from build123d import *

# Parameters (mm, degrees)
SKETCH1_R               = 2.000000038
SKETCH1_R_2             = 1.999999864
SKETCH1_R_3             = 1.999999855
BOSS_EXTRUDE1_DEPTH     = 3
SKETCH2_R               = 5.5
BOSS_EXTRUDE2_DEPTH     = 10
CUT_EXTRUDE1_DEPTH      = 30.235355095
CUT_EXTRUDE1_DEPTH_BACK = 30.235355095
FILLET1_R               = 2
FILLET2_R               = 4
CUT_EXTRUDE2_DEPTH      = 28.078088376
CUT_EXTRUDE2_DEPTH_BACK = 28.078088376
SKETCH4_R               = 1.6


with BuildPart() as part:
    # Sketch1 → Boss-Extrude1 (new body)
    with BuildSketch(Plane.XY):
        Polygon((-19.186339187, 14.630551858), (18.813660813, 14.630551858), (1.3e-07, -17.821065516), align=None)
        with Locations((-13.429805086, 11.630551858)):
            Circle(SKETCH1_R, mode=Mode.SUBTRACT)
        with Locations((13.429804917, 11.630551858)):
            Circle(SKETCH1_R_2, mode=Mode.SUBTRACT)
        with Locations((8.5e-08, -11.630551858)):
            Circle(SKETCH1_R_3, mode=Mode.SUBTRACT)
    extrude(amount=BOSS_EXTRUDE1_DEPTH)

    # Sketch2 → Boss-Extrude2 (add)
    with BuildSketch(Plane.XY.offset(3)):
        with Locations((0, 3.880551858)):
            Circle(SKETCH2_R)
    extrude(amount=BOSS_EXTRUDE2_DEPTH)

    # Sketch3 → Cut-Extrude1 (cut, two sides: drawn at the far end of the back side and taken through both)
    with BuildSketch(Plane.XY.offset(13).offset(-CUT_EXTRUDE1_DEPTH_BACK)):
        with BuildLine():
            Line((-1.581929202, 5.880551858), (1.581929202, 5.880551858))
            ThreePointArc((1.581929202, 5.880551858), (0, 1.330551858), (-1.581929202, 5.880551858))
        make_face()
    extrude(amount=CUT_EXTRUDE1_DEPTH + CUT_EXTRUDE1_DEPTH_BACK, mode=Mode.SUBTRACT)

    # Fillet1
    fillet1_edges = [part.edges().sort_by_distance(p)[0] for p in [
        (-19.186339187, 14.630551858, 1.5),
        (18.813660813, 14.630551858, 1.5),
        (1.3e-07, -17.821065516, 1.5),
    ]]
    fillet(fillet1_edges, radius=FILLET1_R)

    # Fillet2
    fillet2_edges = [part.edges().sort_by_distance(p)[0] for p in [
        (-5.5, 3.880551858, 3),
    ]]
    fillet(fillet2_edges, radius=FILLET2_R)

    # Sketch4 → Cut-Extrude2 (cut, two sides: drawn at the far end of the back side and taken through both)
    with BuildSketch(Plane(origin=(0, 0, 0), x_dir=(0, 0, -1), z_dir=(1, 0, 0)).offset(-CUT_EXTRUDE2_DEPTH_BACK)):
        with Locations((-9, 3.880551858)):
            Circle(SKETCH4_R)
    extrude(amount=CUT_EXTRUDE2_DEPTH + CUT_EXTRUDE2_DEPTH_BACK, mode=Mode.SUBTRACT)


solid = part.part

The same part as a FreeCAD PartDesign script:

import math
import FreeCAD as App
import Part
import Sketcher
Q = App.Units.Quantity


def edges_at(feature, points):
    """Names of the edges that pass closest to the given points."""
    edges = feature.Shape.Edges
    near = lambda p: min(range(len(edges)), key=lambda i: edges[i].distToShape(Part.Vertex(*p))[0])
    return sorted({f"Edge{near(p) + 1}" for p in points})


def add_polygon(sketch, points):
    """Adds a closed chain of lines whose ends are joined by coincident constraints."""
    first, n = sketch.GeometryCount, len(points)
    for a, b in zip(points, points[1:] + points[:1]):
        sketch.addGeometry(Part.LineSegment(App.Vector(*a, 0), App.Vector(*b, 0)), False)
    for i in range(n):
        sketch.addConstraint(Sketcher.Constraint("Coincident", first + i, 2, first + (i + 1) % n, 1))

doc = App.newDocument("Part")
body = doc.addObject("PartDesign::Body", "Body")

# Sketch on XY plane
sketch1 = doc.addObject("Sketcher::SketchObject", "Sketch")
body.addObject(sketch1)
sketch1.AttachmentSupport = (doc.XY_Plane, [""])
sketch1.MapMode = "FlatFace"
add_polygon(sketch1, [(18.8, 14.6), (-19.2, 14.6), (0, -17.8)])  # lines 0-2
sketch1.addGeometry(Part.Circle(App.Vector(0, -11.6, 0), App.Vector(0, 0, 1), 2), False)  # 3
sketch1.addGeometry(Part.Circle(App.Vector(13.4, 11.6, 0), App.Vector(0, 0, 1), 2), False)  # 4
sketch1.addGeometry(Part.Circle(App.Vector(-13.4, 11.6, 0), App.Vector(0, 0, 1), 2), False)  # 5
sketch1.addConstraint([
    Sketcher.Constraint("Horizontal", 0),
    Sketcher.Constraint("Equal", 3, 4),
    Sketcher.Constraint("Equal", 4, 5),
    Sketcher.Constraint("Symmetric", 4, 3, 5, 3, -2),
    Sketcher.Constraint("PointOnObject", 3, 3, -2),
    Sketcher.Constraint("PointOnObject", 1, 2, -2),
    Sketcher.Constraint("Diameter", 3, Q("4 mm")),
    Sketcher.Constraint("DistanceX", 0, 2, 0, 1, Q("38 mm")),
    Sketcher.Constraint("DistanceY", 5, 3, 0, 2, Q("3 mm")),
    Sketcher.Constraint("DistanceY", 3, 3, -1, 1, Q("11.630552 mm")),
    Sketcher.Constraint("DistanceY", -1, 1, 4, 3, Q("11.630552 mm")),
    Sketcher.Constraint("DistanceX", 0, 2, -1, 1, Q("19.186339 mm")),
    Sketcher.Constraint("DistanceX", 5, 3, 4, 3, Q("26.85961 mm")),
    Sketcher.Constraint("Distance", 1, Q("37.699113 mm")),
])
pad1 = doc.addObject("PartDesign::Pad", "Pad")
body.addObject(pad1)
pad1.Profile = sketch1
pad1.Length = 3

# Sketch on XY plane
sketch2 = doc.addObject("Sketcher::SketchObject", "Sketch001")
body.addObject(sketch2)
sketch2.AttachmentSupport = (doc.XY_Plane, [""])
sketch2.MapMode = "FlatFace"
sketch2.AttachmentOffset = App.Placement(App.Vector(0, 0, 3), App.Rotation())
sketch2.addGeometry(Part.Circle(App.Vector(0, 4, 0), App.Vector(0, 0, 1), 6), False)
sketch2.addConstraint([
    Sketcher.Constraint("PointOnObject", 0, 3, -2),
    Sketcher.Constraint("Diameter", 0, Q("11 mm")),
    Sketcher.Constraint("DistanceY", -1, 1, 0, 3, Q("3.880552 mm")),
])
pad2 = doc.addObject("PartDesign::Pad", "Pad001")
body.addObject(pad2)
pad2.Profile = sketch2
pad2.Length = 10

# Sketch on XY plane
sketch3 = doc.addObject("Sketcher::SketchObject", "Sketch002")
body.addObject(sketch3)
sketch3.AttachmentSupport = (doc.XY_Plane, [""])
sketch3.MapMode = "FlatFace"
sketch3.AttachmentOffset = App.Placement(App.Vector(0, 0, 13), App.Rotation())
sketch3.addGeometry([
    Part.LineSegment(App.Vector(1.6, 5.9, 0), App.Vector(-1.6, 5.9, 0)),
    Part.ArcOfCircle(Part.Circle(App.Vector(0, 3.9, 0), App.Vector(0, 0, 1), 2.5), math.radians(128), math.radians(412)),
], False)
sketch3.addConstraint([
    Sketcher.Constraint("Coincident", 0, 1, 1, 2),
    Sketcher.Constraint("Coincident", 1, 1, 0, 2),
    Sketcher.Constraint("Horizontal", 0),
    Sketcher.Constraint("PointOnObject", 1, 3, -2),
    Sketcher.Constraint("Radius", 1, Q("2.55 mm")),
    Sketcher.Constraint("DistanceY", 1, 3, 0, 1, Q("2 mm")),
    Sketcher.Constraint("DistanceY", -1, 1, 1, 3, Q("3.880552 mm")),
])
pocket1 = doc.addObject("PartDesign::Pocket", "Pocket")
body.addObject(pocket1)
pocket1.Profile = sketch3
pocket1.Type = "ThroughAll"
pocket1.Midplane = True
doc.recompute()

fillet = doc.addObject("PartDesign::Fillet", "Fillet")
body.addObject(fillet)
fillet.Base = (pocket1, edges_at(pocket1, [(-19.186, 14.631, 1.5), (18.814, 14.631, 1.5), (0, -17.821, 1.5)]))
fillet.Radius = 2
doc.recompute()

fillet2 = doc.addObject("PartDesign::Fillet", "Fillet001")
body.addObject(fillet2)
fillet2.Base = (fillet, edges_at(fillet, [(-5.5, 3.881, 3)]))
fillet2.Radius = 4

# Sketch on YZ plane
sketch4 = doc.addObject("Sketcher::SketchObject", "Sketch003")
body.addObject(sketch4)
sketch4.AttachmentSupport = (doc.YZ_Plane, [""])
sketch4.MapMode = "FlatFace"
sketch4.addGeometry(Part.Circle(App.Vector(3.9, 9, 0), App.Vector(0, 0, 1), 1.6), False)
sketch4.addConstraint([
    Sketcher.Constraint("Diameter", 0, Q("3.2 mm")),
    Sketcher.Constraint("DistanceY", -1, 1, 0, 3, Q("9 mm")),
    Sketcher.Constraint("DistanceX", -1, 1, 0, 3, Q("3.880552 mm")),
])
pocket2 = doc.addObject("PartDesign::Pocket", "Pocket001")
body.addObject(pocket2)
pocket2.Profile = sketch4
pocket2.Type = "ThroughAll"
pocket2.Midplane = True

doc.recompute()
